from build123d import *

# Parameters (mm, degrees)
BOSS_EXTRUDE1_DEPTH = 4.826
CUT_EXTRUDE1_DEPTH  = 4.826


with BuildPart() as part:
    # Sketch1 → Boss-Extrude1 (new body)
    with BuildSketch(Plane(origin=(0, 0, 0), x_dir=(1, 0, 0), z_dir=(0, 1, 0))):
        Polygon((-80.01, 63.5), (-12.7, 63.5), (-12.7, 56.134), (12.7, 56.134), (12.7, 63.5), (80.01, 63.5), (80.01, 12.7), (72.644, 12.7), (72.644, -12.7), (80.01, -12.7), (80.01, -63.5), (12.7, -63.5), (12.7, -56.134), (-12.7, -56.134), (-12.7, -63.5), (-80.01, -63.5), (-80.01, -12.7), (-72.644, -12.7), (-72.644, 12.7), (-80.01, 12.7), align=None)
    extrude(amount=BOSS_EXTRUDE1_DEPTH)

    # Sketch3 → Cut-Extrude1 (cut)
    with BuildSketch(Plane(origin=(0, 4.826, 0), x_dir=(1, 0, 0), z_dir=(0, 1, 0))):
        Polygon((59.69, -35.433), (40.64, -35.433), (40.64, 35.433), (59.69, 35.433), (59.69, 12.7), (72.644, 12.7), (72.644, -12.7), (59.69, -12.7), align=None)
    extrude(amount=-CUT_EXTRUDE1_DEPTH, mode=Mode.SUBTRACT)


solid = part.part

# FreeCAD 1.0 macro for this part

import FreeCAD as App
import Part
import Sketcher
Q = App.Units.Quantity


def add_polygon(sketch, points):
    """Adds a closed chain of lines whose ends are joined by coincident constraints."""
    first, n = sketch.GeometryCount, len(points)
    for a, b in zip(points, points[1:] + points[:1]):
        sketch.addGeometry(Part.LineSegment(App.Vector(*a, 0), App.Vector(*b, 0)), False)
    for i in range(n):
        sketch.addConstraint(Sketcher.Constraint("Coincident", first + i, 2, first + (i + 1) % n, 1))

doc = App.newDocument("Part")
params = doc.addObject("Spreadsheet::Sheet", "Params")
for row, (alias, value) in enumerate([
    ("sketch1_width", "1 in"),
    ("sketch1_height", "2 in"),
    ("sketch1_width2", "2.65 in"),
    ("sketch1_width3", "0.29 in"),
    ("pad1_length", "0.19 in"),
    ("sketch2_height", "1 in"),
    ("sketch2_width", "0.75 in"),
    ("sketch2_width2", "0.51 in"),
    ("sketch2_height2", "2.79 in"),
    ("pocket1_length", "0.19 in"),
], start=1):
    params.set(f"A{row}", alias)
    params.set(f"B{row}", "=" + value)
    params.setAlias(f"B{row}", alias)

body = doc.addObject("PartDesign::Body", "Body")

sketch1 = body.newObject("Sketcher::SketchObject", "Sketch")
sketch1.AttachmentSupport = (doc.getObject("XZ_Plane"), [""])
sketch1.MapMode = "FlatFace"
add_polygon(sketch1, [(-12.7, -63.5), (-80.01, -63.5), (-80.01, -12.7), (-72.644, -12.7), (-72.644, 12.7), (-80.01, 12.7), (-80.01, 63.5), (-12.7, 63.5), (-12.7, 56.134), (12.7, 56.134), (12.7, 63.5), (80.01, 63.5), (80.01, 12.7), (72.644, 12.7), (72.644, -12.7), (80.01, -12.7), (80.01, -63.5), (12.7, -63.5), (12.7, -56.134), (-12.7, -56.134)])
sketch1.addConstraint(Sketcher.Constraint("Horizontal", 0))
sketch1.addConstraint(Sketcher.Constraint("Vertical", 1))
sketch1.addConstraint(Sketcher.Constraint("Horizontal", 2))
sketch1.addConstraint(Sketcher.Constraint("Vertical", 3))
sketch1.addConstraint(Sketcher.Constraint("Horizontal", 4))
sketch1.addConstraint(Sketcher.Constraint("Vertical", 5))
sketch1.addConstraint(Sketcher.Constraint("Horizontal", 6))
sketch1.addConstraint(Sketcher.Constraint("Vertical", 7))
sketch1.addConstraint(Sketcher.Constraint("Horizontal", 8))
sketch1.addConstraint(Sketcher.Constraint("Vertical", 9))
sketch1.addConstraint(Sketcher.Constraint("Horizontal", 10))
sketch1.addConstraint(Sketcher.Constraint("Vertical", 11))
sketch1.addConstraint(Sketcher.Constraint("Horizontal", 12))
sketch1.addConstraint(Sketcher.Constraint("Vertical", 13))
sketch1.addConstraint(Sketcher.Constraint("Horizontal", 14))
sketch1.addConstraint(Sketcher.Constraint("Vertical", 15))
sketch1.addConstraint(Sketcher.Constraint("Horizontal", 16))
sketch1.addConstraint(Sketcher.Constraint("Vertical", 17))
sketch1.addConstraint(Sketcher.Constraint("Horizontal", 18))
sketch1.addConstraint(Sketcher.Constraint("Vertical", 19))
sketch1.addConstraint(Sketcher.Constraint("Symmetric", 0, 2, 10, 2, -1, 1))
sketch1.addConstraint(Sketcher.Constraint("Symmetric", 2, 2, 12, 2, -1, 1))
sketch1.addConstraint(Sketcher.Constraint("Symmetric", 4, 2, 14, 2, -1, 1))
sketch1.addConstraint(Sketcher.Constraint("Symmetric", 6, 2, 16, 2, -1, 1))
sketch1.addConstraint(Sketcher.Constraint("Symmetric", 8, 2, 18, 2, -1, 1))
sketch1.addConstraint(Sketcher.Constraint("Symmetric", 6, 2, 9, 2, -2))
sketch1.addConstraint(Sketcher.Constraint("Symmetric", 4, 2, 11, 2, -2))
sketch1.addConstraint(Sketcher.Constraint("Equal", 18, 3))
sketch1.addConstraint(Sketcher.Constraint("Equal", 14, 7))
sketch1.addConstraint(Sketcher.Constraint("DistanceX", 8, 1, 8, 2, Q("1 in")))
sketch1.addConstraint(Sketcher.Constraint("DistanceY", 1, 1, 1, 2, Q("2 in")))
sketch1.addConstraint(Sketcher.Constraint("DistanceX", 0, 2, 0, 1, Q("2.65 in")))
sketch1.addConstraint(Sketcher.Constraint("DistanceX", 2, 1, 2, 2, Q("0.29 in")))
sketch1.setExpression("Constraints[49]", "Params.sketch1_width")
sketch1.setExpression("Constraints[50]", "Params.sketch1_height")
sketch1.setExpression("Constraints[51]", "Params.sketch1_width2")
sketch1.setExpression("Constraints[52]", "Params.sketch1_width3")
pad1 = body.newObject("PartDesign::Pad", "Pad")
pad1.Profile = sketch1
pad1.setExpression("Length", "Params.pad1_length")
pad1.Reversed = True

sketch2 = body.newObject("Sketcher::SketchObject", "Sketch001")
sketch2.AttachmentSupport = (doc.getObject("XZ_Plane"), [""])
sketch2.MapMode = "FlatFace"
sketch2.AttachmentOffset = App.Placement(App.Vector(0, 0, -0.19 * 25.4), App.Rotation())
add_polygon(sketch2, [(40.64, 35.433), (59.69, 35.433), (59.69, 12.7), (72.644, 12.7), (72.644, -12.7), (59.69, -12.7), (59.69, -35.433), (40.64, -35.433)])
sketch2.addConstraint(Sketcher.Constraint("Horizontal", 0))
sketch2.addConstraint(Sketcher.Constraint("Vertical", 1))
sketch2.addConstraint(Sketcher.Constraint("Horizontal", 2))
sketch2.addConstraint(Sketcher.Constraint("Vertical", 3))
sketch2.addConstraint(Sketcher.Constraint("Horizontal", 4))
sketch2.addConstraint(Sketcher.Constraint("Vertical", 5))
sketch2.addConstraint(Sketcher.Constraint("Horizontal", 6))
sketch2.addConstraint(Sketcher.Constraint("Vertical", 7))
sketch2.addConstraint(Sketcher.Constraint("Symmetric", 1, 2, 4, 2, -1))
sketch2.addConstraint(Sketcher.Constraint("Equal", 1, 5))
sketch2.addConstraint(Sketcher.Constraint("DistanceY", 3, 2, 3, 1, Q("1 in")))
sketch2.addConstraint(Sketcher.Constraint("DistanceX", 0, 1, 0, 2, Q("0.75 in")))
sketch2.addConstraint(Sketcher.Constraint("DistanceX", 2, 1, 2, 2, Q("0.51 in")))
sketch2.addConstraint(Sketcher.Constraint("DistanceY", 7, 1, 7, 2, Q("2.79 in")))
sketch2.addConstraint(Sketcher.Constraint("DistanceX", -1, 1, 6, 2, Q("1.6 in")))
sketch2.setExpression("Constraints[18]", "Params.sketch2_height")
sketch2.setExpression("Constraints[19]", "Params.sketch2_width")
sketch2.setExpression("Constraints[20]", "Params.sketch2_width2")
sketch2.setExpression("Constraints[21]", "Params.sketch2_height2")
pocket1 = body.newObject("PartDesign::Pocket", "Pocket")
pocket1.Profile = sketch2
pocket1.setExpression("Length", "Params.pocket1_length")
pocket1.Reversed = True

doc.recompute()
